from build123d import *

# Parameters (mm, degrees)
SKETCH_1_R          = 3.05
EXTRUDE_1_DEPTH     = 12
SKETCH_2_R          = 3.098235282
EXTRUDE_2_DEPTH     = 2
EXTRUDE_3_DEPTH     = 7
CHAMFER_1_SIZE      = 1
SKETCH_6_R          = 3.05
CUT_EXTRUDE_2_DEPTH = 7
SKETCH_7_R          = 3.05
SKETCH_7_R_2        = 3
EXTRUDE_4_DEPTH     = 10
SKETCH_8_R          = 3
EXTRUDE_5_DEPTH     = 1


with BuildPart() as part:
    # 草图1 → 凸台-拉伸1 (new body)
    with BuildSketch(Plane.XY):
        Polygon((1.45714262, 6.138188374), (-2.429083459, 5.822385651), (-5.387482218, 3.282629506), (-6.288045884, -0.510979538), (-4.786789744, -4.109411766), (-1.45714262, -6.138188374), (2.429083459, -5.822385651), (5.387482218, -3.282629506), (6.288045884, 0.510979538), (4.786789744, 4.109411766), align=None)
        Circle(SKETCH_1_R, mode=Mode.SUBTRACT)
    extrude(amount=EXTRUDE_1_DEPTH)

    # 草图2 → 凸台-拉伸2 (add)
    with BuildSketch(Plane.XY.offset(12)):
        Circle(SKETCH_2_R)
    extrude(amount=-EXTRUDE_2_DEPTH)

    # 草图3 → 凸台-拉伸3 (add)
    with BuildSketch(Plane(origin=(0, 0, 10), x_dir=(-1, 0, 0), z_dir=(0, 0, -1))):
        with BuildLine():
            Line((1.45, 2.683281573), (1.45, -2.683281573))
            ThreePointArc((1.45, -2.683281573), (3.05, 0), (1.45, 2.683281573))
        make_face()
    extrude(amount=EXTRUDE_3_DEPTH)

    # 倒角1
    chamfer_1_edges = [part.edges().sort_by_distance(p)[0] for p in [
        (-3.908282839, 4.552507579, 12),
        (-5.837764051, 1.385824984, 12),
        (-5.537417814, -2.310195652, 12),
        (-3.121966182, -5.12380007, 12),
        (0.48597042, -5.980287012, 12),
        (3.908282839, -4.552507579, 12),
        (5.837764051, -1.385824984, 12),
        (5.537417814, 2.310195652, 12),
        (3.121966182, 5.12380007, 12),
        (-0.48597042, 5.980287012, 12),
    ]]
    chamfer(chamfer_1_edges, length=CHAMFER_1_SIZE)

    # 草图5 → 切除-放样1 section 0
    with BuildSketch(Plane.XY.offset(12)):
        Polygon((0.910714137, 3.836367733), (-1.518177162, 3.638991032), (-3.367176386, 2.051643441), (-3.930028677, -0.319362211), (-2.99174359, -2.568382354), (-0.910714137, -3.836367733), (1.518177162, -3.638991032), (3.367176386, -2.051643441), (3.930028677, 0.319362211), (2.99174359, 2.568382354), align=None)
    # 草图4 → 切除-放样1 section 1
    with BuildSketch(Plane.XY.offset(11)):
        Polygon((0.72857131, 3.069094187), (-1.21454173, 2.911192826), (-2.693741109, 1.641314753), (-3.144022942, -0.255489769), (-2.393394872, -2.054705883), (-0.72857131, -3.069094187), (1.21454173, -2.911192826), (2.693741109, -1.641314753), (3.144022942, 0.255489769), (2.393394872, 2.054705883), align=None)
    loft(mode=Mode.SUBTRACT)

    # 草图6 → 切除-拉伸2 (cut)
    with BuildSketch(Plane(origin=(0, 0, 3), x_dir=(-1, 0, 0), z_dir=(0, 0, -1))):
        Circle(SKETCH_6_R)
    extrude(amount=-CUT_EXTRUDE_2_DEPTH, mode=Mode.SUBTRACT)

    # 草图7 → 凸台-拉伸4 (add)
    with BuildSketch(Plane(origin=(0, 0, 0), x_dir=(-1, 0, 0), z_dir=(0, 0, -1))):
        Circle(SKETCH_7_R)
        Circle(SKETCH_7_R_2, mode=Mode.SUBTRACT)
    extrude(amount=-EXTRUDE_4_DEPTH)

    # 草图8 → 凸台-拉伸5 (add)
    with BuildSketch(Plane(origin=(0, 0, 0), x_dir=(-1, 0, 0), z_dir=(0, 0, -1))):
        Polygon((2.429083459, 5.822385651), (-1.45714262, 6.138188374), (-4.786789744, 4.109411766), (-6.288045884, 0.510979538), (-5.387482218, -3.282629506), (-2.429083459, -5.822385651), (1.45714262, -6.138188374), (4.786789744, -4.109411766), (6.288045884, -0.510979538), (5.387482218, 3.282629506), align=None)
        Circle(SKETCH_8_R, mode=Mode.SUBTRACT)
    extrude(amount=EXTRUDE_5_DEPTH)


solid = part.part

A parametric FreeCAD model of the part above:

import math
import FreeCAD as App
import Part
import Sketcher

V = App.Vector


def edges_at(feature, points):
    """Names of the edges that pass closest to the given points."""
    edges = feature.Shape.Edges
    near = lambda p: min(range(len(edges)), key=lambda i: edges[i].distToShape(Part.Vertex(*p))[0])
    return sorted({f"Edge{near(p) + 1}" for p in points})


def add_polygon(sketch, points):
    """Adds a closed chain of lines whose ends are joined by coincident constraints."""
    first, n = sketch.GeometryCount, len(points)
    for a, b in zip(points, points[1:] + points[:1]):
        sketch.addGeometry(Part.LineSegment(App.Vector(*a, 0), App.Vector(*b, 0)), False)
    for i in range(n):
        sketch.addConstraint(Sketcher.Constraint("Coincident", first + i, 2, first + (i + 1) % n, 1))

doc = App.newDocument("Part")
params = doc.addObject("Spreadsheet::Sheet", "Params")
for row, (alias, value) in enumerate([
    ("sketch1_diameter", "6.1 mm"),
    ("pad1_length", "12 mm"),
    ("pad2_length", "2 mm"),
    ("sketch3_radius", "3.05 mm"),
    ("pad3_length", "7 mm"),
    ("chamfer_size", "1 mm"),
    ("sketch6_diameter", "6.1 mm"),
    ("pocket1_length", "7 mm"),
    ("sketch7_diameter", "6 mm"),
    ("sketch7_diameter2", "6.1 mm"),
    ("pad4_length", "10 mm"),
    ("sketch8_diameter", "6 mm"),
    ("pad5_length", "1 mm"),
], start=1):
    params.set(f"A{row}", alias)
    params.set(f"B{row}", "=" + value)
    params.setAlias(f"B{row}", alias)

body = doc.addObject("PartDesign::Body", "Body")

# Sketch on XY plane
sketch1 = body.newObject("Sketcher::SketchObject", "Sketch")
sketch1.AttachmentSupport = (doc.getObject("XY_Plane"), [""])
sketch1.MapMode = "FlatFace"
add_polygon(sketch1, [(1.5, 6.1), (-2.4, 5.8), (-5.4, 3.3), (-6.3, -0.5), (-4.8, -4.1), (-1.5, -6.1), (2.4, -5.8), (5.4, -3.3), (6.3, 0.5), (4.8, 4.1)])  # lines 0-9
sketch1.addGeometry(Part.Circle(V(0, 0, 0), V(0, 0, 1), 3), False)  # 10
sketch1.addConstraint([
    Sketcher.Constraint("Coincident", 10, 3, -1, 1),
    Sketcher.Constraint("Symmetric", 0, 2, 5, 2, -1, 1),
    Sketcher.Constraint("Symmetric", 1, 2, 6, 2, -1, 1),
    Sketcher.Constraint("Symmetric", 2, 2, 7, 2, -1, 1),
    Sketcher.Constraint("Symmetric", 3, 2, 8, 2, -1, 1),
    Sketcher.Constraint("Symmetric", 4, 2, 9, 2, -1, 1),
    Sketcher.Constraint("Equal", 0, 1),
    Sketcher.Constraint("Equal", 1, 2),
    Sketcher.Constraint("Equal", 2, 3),
    Sketcher.Constraint("Equal", 3, 4),
    Sketcher.Constraint("Diameter", 10, 6.1),
    Sketcher.Constraint("DistanceX", 1, 2, 0, 2, 2.958399),
    Sketcher.Constraint("DistanceY", -1, 1, 1, 2, 3.28263),
    Sketcher.Constraint("DistanceY", 2, 2, -1, 1, 0.51098),
    Sketcher.Constraint("DistanceX", 3, 2, -1, 1, 4.78679),
    Sketcher.Constraint("DistanceY", 3, 2, -1, 1, 4.109412),
    Sketcher.Constraint("DistanceY", 4, 2, -1, 1, 6.138188),
])
sketch1.setExpression("Constraints[20]", "Params.sketch1_diameter")
pad1 = body.newObject("PartDesign::Pad", "Pad")
pad1.Profile = sketch1
pad1.setExpression("Length", "Params.pad1_length")

# Sketch on XY plane
sketch2 = body.newObject("Sketcher::SketchObject", "Sketch001")
sketch2.AttachmentSupport = (doc.getObject("XY_Plane"), [""])
sketch2.MapMode = "FlatFace"
sketch2.AttachmentOffset = App.Placement(V(0, 0, 12), App.Rotation())
sketch2.addGeometry(Part.Circle(V(0, 0, 0), V(0, 0, 1), 3.1), False)
sketch2.addConstraint([
    Sketcher.Constraint("Coincident", 0, 3, -1, 1),
    Sketcher.Constraint("Diameter", 0, 6.196471),
])
pad2 = body.newObject("PartDesign::Pad", "Pad001")
pad2.Profile = sketch2
pad2.setExpression("Length", "Params.pad2_length")
pad2.Reversed = True

# Sketch on XY plane
sketch3 = body.newObject("Sketcher::SketchObject", "Sketch002")
sketch3.AttachmentSupport = (doc.getObject("XY_Plane"), [""])
sketch3.MapMode = "FlatFace"
sketch3.AttachmentOffset = App.Placement(V(0, 0, 10), App.Rotation())
sketch3.addGeometry([
    Part.LineSegment(V(-1.4, 2.7, 0), V(-1.4, -2.7, 0)),
    Part.ArcOfCircle(Part.Circle(V(0, 0, 0), V(0, 0, 1), 3), math.radians(118), math.radians(242)),
], False)
sketch3.addConstraint([
    Sketcher.Constraint("Coincident", 0, 1, 1, 1),
    Sketcher.Constraint("Coincident", 1, 2, 0, 2),
    Sketcher.Constraint("Vertical", 0),
    Sketcher.Constraint("Coincident", 1, 3, -1, 1),
    Sketcher.Constraint("Radius", 1, 3.05),
    Sketcher.Constraint("DistanceX", 0, 1, -1, 1, 1.45),
])
sketch3.setExpression("Constraints[4]", "Params.sketch3_radius")
pad3 = body.newObject("PartDesign::Pad", "Pad002")
pad3.Profile = sketch3
pad3.setExpression("Length", "Params.pad3_length")
pad3.Reversed = True
doc.recompute()

chamfer = body.newObject("PartDesign::Chamfer", "Chamfer")
chamfer.Base = (pad3, edges_at(pad3, [
    (-3.908, 4.553, 12),
    (-5.838, 1.386, 12),
    (-5.537, -2.31, 12),
    (-3.122, -5.124, 12),
    (0.486, -5.98, 12),
    (3.908, -4.553, 12),
    (5.838, -1.386, 12),
    (5.537, 2.31, 12),
    (3.122, 5.124, 12),
    (-0.486, 5.98, 12),
]))
chamfer.setExpression("Size", "Params.chamfer_size")

# Sketch on XY plane
sketch4 = body.newObject("Sketcher::SketchObject", "Sketch003")
sketch4.AttachmentSupport = (doc.getObject("XY_Plane"), [""])
sketch4.MapMode = "FlatFace"
sketch4.AttachmentOffset = App.Placement(V(0, 0, 12), App.Rotation())
add_polygon(sketch4, [(0.9, 3.8), (-1.5, 3.6), (-3.4, 2.1), (-3.9, -0.3), (-3, -2.6), (-0.9, -3.8), (1.5, -3.6), (3.4, -2.1), (3.9, 0.3), (3, 2.6)])  # lines 0-9
sketch4.addConstraint([
    Sketcher.Constraint("Symmetric", 0, 2, 5, 2, -1, 1),
    Sketcher.Constraint("Symmetric", 1, 2, 6, 2, -1, 1),
    Sketcher.Constraint("Symmetric", 2, 2, 7, 2, -1, 1),
    Sketcher.Constraint("Symmetric", 3, 2, 8, 2, -1, 1),
    Sketcher.Constraint("Symmetric", 4, 2, 9, 2, -1, 1),
    Sketcher.Constraint("Equal", 0, 1),
    Sketcher.Constraint("Equal", 1, 2),
    Sketcher.Constraint("Equal", 2, 3),
    Sketcher.Constraint("Equal", 3, 4),
    Sketcher.Constraint("DistanceX", 1, 2, 0, 2, 1.848999),
    Sketcher.Constraint("DistanceY", -1, 1, 0, 2, 3.638991),
    Sketcher.Constraint("DistanceX", 2, 2, -1, 1, 3.930029),
    Sketcher.Constraint("DistanceX", 2, 2, 0, 2, 2.411852),
    Sketcher.Constraint("DistanceY", 3, 2, 2, 2, 2.24902),
    Sketcher.Constraint("DistanceX", 3, 2, 4, 2, 2.081029),
])

# Sketch on XY plane
sketch5 = body.newObject("Sketcher::SketchObject", "Sketch004")
sketch5.AttachmentSupport = (doc.getObject("XY_Plane"), [""])
sketch5.MapMode = "FlatFace"
sketch5.AttachmentOffset = App.Placement(V(0, 0, 11), App.Rotation())
add_polygon(sketch5, [(0.7, 3.1), (-1.2, 2.9), (-2.7, 1.6), (-3.1, -0.3), (-2.4, -2.1), (-0.7, -3.1), (1.2, -2.9), (2.7, -1.6), (3.1, 0.3), (2.4, 2.1)])  # lines 0-9
sketch5.addConstraint([
    Sketcher.Constraint("Symmetric", 0, 2, 5, 2, -1, 1),
    Sketcher.Constraint("Symmetric", 1, 2, 6, 2, -1, 1),
    Sketcher.Constraint("Symmetric", 2, 2, 7, 2, -1, 1),
    Sketcher.Constraint("Symmetric", 3, 2, 8, 2, -1, 1),
    Sketcher.Constraint("Symmetric", 4, 2, 9, 2, -1, 1),
    Sketcher.Constraint("Equal", 0, 1),
    Sketcher.Constraint("Equal", 1, 2),
    Sketcher.Constraint("Equal", 2, 3),
    Sketcher.Constraint("Equal", 3, 4),
    Sketcher.Constraint("DistanceX", 1, 2, 0, 2, 1.479199),
    Sketcher.Constraint("DistanceY", 3, 2, 0, 2, 4.965899),
    Sketcher.Constraint("DistanceY", 4, 2, 5, 2, 0.157901),
    Sketcher.Constraint("Distance", 0, 1.949518),
    Sketcher.Constraint("DistanceX", 0, 2, -1, 1, 1.214542),
    Sketcher.Constraint("DistanceY", 2, 2, -1, 1, 0.25549),
])

subtractiveloft = body.newObject("PartDesign::SubtractiveLoft", "SubtractiveLoft")
subtractiveloft.Profile = sketch4
subtractiveloft.Sections = [sketch5]

# Sketch on XY plane
sketch6 = body.newObject("Sketcher::SketchObject", "Sketch005")
sketch6.AttachmentSupport = (doc.getObject("XY_Plane"), [""])
sketch6.MapMode = "FlatFace"
sketch6.AttachmentOffset = App.Placement(V(0, 0, 3), App.Rotation())
sketch6.addGeometry(Part.Circle(V(0, 0, 0), V(0, 0, 1), 3), False)
sketch6.addConstraint([
    Sketcher.Constraint("Coincident", 0, 3, -1, 1),
    Sketcher.Constraint("Diameter", 0, 6.1),
])
sketch6.setExpression("Constraints[1]", "Params.sketch6_diameter")
pocket1 = body.newObject("PartDesign::Pocket", "Pocket")
pocket1.Profile = sketch6
pocket1.setExpression("Length", "Params.pocket1_length")
pocket1.Reversed = True

# Sketch on XY plane
sketch7 = body.newObject("Sketcher::SketchObject", "Sketch006")
sketch7.AttachmentSupport = (doc.getObject("XY_Plane"), [""])
sketch7.MapMode = "FlatFace"
sketch7.addGeometry([
    Part.Circle(V(0, 0, 0), V(0, 0, 1), 3),
    Part.Circle(V(0, 0, 0), V(0, 0, 1), 3),
], False)
sketch7.addConstraint([
    Sketcher.Constraint("Coincident", 0, 3, -1, 1),
    Sketcher.Constraint("Coincident", 1, 3, -1, 1),
    Sketcher.Constraint("Diameter", 1, 6.0),
    Sketcher.Constraint("Diameter", 0, 6.1),
])
sketch7.setExpression("Constraints[2]", "Params.sketch7_diameter")
sketch7.setExpression("Constraints[3]", "Params.sketch7_diameter2")
pad4 = body.newObject("PartDesign::Pad", "Pad003")
pad4.Profile = sketch7
pad4.setExpression("Length", "Params.pad4_length")

# Sketch on XY plane
sketch8 = body.newObject("Sketcher::SketchObject", "Sketch007")
sketch8.AttachmentSupport = (doc.getObject("XY_Plane"), [""])
sketch8.MapMode = "FlatFace"
add_polygon(sketch8, [(-2.4, 5.8), (1.5, 6.1), (4.8, 4.1), (6.3, 0.5), (5.4, -3.3), (2.4, -5.8), (-1.5, -6.1), (-4.8, -4.1), (-6.3, -0.5), (-5.4, 3.3)])  # lines 0-9
sketch8.addGeometry(Part.Circle(V(0, 0, 0), V(0, 0, 1), 3), False)  # 10
sketch8.addConstraint([
    Sketcher.Constraint("Coincident", 10, 3, -1, 1),
    Sketcher.Constraint("Symmetric", 0, 2, 5, 2, -1, 1),
    Sketcher.Constraint("Symmetric", 1, 2, 6, 2, -1, 1),
    Sketcher.Constraint("Symmetric", 2, 2, 7, 2, -1, 1),
    Sketcher.Constraint("Symmetric", 3, 2, 8, 2, -1, 1),
    Sketcher.Constraint("Symmetric", 4, 2, 9, 2, -1, 1),
    Sketcher.Constraint("Equal", 0, 1),
    Sketcher.Constraint("Equal", 1, 2),
    Sketcher.Constraint("Equal", 2, 3),
    Sketcher.Constraint("Equal", 3, 4),
    Sketcher.Constraint("Diameter", 10, 6.0),
    Sketcher.Constraint("DistanceX", 4, 2, 3, 2, 2.958399),
    Sketcher.Constraint("DistanceY", 5, 2, 1, 2, 10.2476),
    Sketcher.Constraint("DistanceY", -1, 1, 0, 2, 6.138188),
    Sketcher.Constraint("DistanceX", -1, 1, 1, 2, 4.78679),
    Sketcher.Constraint("DistanceY", -1, 1, 2, 2, 0.51098),
    Sketcher.Constraint("DistanceY", 3, 2, -1, 1, 3.28263),
])
sketch8.setExpression("Constraints[20]", "Params.sketch8_diameter")
pad5 = body.newObject("PartDesign::Pad", "Pad004")
pad5.Profile = sketch8
pad5.setExpression("Length", "Params.pad5_length")
pad5.Reversed = True

doc.recompute()
